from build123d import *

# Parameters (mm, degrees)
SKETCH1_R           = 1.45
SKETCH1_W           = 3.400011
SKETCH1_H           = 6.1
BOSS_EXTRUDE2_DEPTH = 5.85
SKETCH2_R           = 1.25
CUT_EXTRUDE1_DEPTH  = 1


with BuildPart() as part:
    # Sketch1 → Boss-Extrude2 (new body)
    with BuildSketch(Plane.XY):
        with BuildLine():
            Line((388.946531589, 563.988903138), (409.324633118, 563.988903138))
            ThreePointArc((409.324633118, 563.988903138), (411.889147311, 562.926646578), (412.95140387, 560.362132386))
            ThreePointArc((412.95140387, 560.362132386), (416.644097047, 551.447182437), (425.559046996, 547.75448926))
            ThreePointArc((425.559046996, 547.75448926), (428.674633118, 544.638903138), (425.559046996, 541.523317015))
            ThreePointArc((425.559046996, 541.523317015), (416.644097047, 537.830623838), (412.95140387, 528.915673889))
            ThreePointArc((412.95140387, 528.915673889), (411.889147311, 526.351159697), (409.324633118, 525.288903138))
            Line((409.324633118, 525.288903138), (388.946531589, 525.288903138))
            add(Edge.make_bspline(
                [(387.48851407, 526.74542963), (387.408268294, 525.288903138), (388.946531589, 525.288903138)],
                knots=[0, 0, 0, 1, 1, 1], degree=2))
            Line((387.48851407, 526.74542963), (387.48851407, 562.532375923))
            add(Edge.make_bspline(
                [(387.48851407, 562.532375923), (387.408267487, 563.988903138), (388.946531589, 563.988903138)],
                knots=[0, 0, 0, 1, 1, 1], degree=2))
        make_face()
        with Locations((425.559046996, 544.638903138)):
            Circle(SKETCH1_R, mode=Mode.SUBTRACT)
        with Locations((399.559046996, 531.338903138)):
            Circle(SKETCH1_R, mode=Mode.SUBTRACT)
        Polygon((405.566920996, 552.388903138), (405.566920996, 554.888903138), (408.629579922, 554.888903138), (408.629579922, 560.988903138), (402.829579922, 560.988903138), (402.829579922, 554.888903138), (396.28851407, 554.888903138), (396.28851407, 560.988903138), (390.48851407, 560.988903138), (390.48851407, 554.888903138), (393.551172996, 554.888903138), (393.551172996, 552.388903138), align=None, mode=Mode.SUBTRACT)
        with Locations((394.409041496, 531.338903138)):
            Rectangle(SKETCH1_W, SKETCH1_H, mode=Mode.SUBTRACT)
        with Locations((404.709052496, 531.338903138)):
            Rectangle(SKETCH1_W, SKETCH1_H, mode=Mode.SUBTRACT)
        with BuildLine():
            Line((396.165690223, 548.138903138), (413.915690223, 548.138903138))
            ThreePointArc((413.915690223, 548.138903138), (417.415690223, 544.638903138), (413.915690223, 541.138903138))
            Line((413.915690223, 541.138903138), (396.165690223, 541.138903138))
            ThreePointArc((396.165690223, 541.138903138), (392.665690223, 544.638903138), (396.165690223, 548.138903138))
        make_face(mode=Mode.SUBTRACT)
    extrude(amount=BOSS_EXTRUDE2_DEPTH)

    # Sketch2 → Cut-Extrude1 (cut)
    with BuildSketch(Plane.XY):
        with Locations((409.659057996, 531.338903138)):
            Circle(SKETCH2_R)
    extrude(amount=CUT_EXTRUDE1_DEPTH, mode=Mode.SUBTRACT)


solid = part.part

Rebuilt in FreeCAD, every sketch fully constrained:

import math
import FreeCAD as App
import Part
import Sketcher

V = App.Vector

doc = App.newDocument("Part")
params = doc.addObject("Spreadsheet::Sheet", "Params")
for row, (alias, value) in enumerate([
    ("sketch1_diameter", "2.9 mm"),
    ("sketch1_radius", "3.5 mm"),
    ("sketch1_width", "5.8 mm"),
    ("sketch1_height", "6.1 mm"),
    ("sketch1_height2", "2.5 mm"),
    ("pad1_length", "5.85 mm"),
    ("sketch2_diameter", "2.5 mm"),
    ("pocket1_length", "1 mm"),
], start=1):
    params.set(f"A{row}", alias)
    params.set(f"B{row}", "=" + value)
    params.setAlias(f"B{row}", alias)

body = doc.addObject("PartDesign::Body", "Body")

# Sketch on XY plane
sketch1 = doc.addObject("Sketcher::SketchObject", "Sketch")
body.addObject(sketch1)
sketch1.AttachmentSupport = (doc.XY_Plane, [""])
sketch1.MapMode = "FlatFace"
sketch1.addGeometry(Part.LineSegment(V(409.324633, 563.988903, 0), V(388.946532, 563.988903, 0)), False)
sketch1.addGeometry(Part.BSplineCurve([V(387.488514, 562.532376, 0), V(387.408267, 563.988903, 0), V(388.946532, 563.988903, 0)], [3, 3], [0, 1], False, 2, [1, 1, 1], False), False)
sketch1.addGeometry(Part.LineSegment(V(387.488514, 562.532376, 0), V(387.488514, 526.74543, 0)), False)
sketch1.addGeometry(Part.BSplineCurve([V(387.488514, 526.74543, 0), V(387.408268, 525.288903, 0), V(388.946532, 525.288903, 0)], [3, 3], [0, 1], False, 2, [1, 1, 1], False), False)
sketch1.addGeometry(Part.LineSegment(V(388.946532, 525.288903, 0), V(409.324633, 525.288903, 0)), False)
sketch1.addGeometry(Part.ArcOfCircle(Part.Circle(V(409.324633, 528.915674, 0), V(0, 0, 1), 3.626771), math.radians(-90), math.radians(0)), False)
sketch1.addGeometry(Part.ArcOfCircle(Part.Circle(V(425.559047, 528.915674, 0), V(0, 0, 1), 12.607643), math.radians(90), math.radians(180)), False)
sketch1.addGeometry(Part.ArcOfCircle(Part.Circle(V(425.559047, 544.638903, 0), V(0, 0, 1), 3.115586), math.radians(-90), math.radians(90)), False)
sketch1.addGeometry(Part.ArcOfCircle(Part.Circle(V(425.559047, 560.362132, 0), V(0, 0, 1), 12.607643), math.radians(-180), math.radians(-90)), False)
sketch1.addGeometry(Part.ArcOfCircle(Part.Circle(V(409.324633, 560.362132, 0), V(0, 0, 1), 3.626771), math.radians(0), math.radians(90)), False)
sketch1.addGeometry(Part.LineSegment(V(403.009047, 528.288903, 0), V(403.009047, 534.388903, 0)), False)
sketch1.addGeometry(Part.LineSegment(V(403.009047, 534.388903, 0), V(406.409058, 534.388903, 0)), False)
sketch1.addGeometry(Part.LineSegment(V(406.409058, 534.388903, 0), V(406.409058, 528.288903, 0)), False)
sketch1.addGeometry(Part.LineSegment(V(406.409058, 528.288903, 0), V(403.009047, 528.288903, 0)), False)
sketch1.addGeometry(Part.Circle(V(399.559047, 531.338903, 0), V(0, 0, 1), 1.45), False)
sketch1.addGeometry(Part.LineSegment(V(392.709036, 528.288903, 0), V(392.709036, 534.388903, 0)), False)
sketch1.addGeometry(Part.LineSegment(V(392.709036, 534.388903, 0), V(396.109047, 534.388903, 0)), False)
sketch1.addGeometry(Part.LineSegment(V(396.109047, 534.388903, 0), V(396.109047, 528.288903, 0)), False)
sketch1.addGeometry(Part.LineSegment(V(396.109047, 528.288903, 0), V(392.709036, 528.288903, 0)), False)
sketch1.addGeometry(Part.Circle(V(425.559047, 544.638903, 0), V(0, 0, 1), 1.45), False)
sketch1.addGeometry(Part.LineSegment(V(396.16569, 548.138903, 0), V(413.91569, 548.138903, 0)), False)
sketch1.addGeometry(Part.ArcOfCircle(Part.Circle(V(413.91569, 544.638903, 0), V(0, 0, 1), 3.5), math.radians(-90), math.radians(90)), False)
sketch1.addGeometry(Part.LineSegment(V(413.91569, 541.138903, 0), V(396.16569, 541.138903, 0)), False)
sketch1.addGeometry(Part.ArcOfCircle(Part.Circle(V(396.16569, 544.638903, 0), V(0, 0, 1), 3.5), math.radians(90), math.radians(270)), False)
sketch1.addGeometry(Part.LineSegment(V(405.566921, 552.388903, 0), V(393.551173, 552.388903, 0)), False)
sketch1.addGeometry(Part.LineSegment(V(393.551173, 552.388903, 0), V(393.551173, 554.888903, 0)), False)
sketch1.addGeometry(Part.LineSegment(V(393.551173, 554.888903, 0), V(390.488514, 554.888903, 0)), False)
sketch1.addGeometry(Part.LineSegment(V(390.488514, 554.888903, 0), V(390.488514, 560.988903, 0)), False)
sketch1.addGeometry(Part.LineSegment(V(390.488514, 560.988903, 0), V(396.288514, 560.988903, 0)), False)
sketch1.addGeometry(Part.LineSegment(V(396.288514, 560.988903, 0), V(396.288514, 554.888903, 0)), False)
sketch1.addGeometry(Part.LineSegment(V(396.288514, 554.888903, 0), V(402.82958, 554.888903, 0)), False)
sketch1.addGeometry(Part.LineSegment(V(402.82958, 554.888903, 0), V(402.82958, 560.988903, 0)), False)
sketch1.addGeometry(Part.LineSegment(V(402.82958, 560.988903, 0), V(408.62958, 560.988903, 0)), False)
sketch1.addGeometry(Part.LineSegment(V(408.62958, 560.988903, 0), V(408.62958, 554.888903, 0)), False)
sketch1.addGeometry(Part.LineSegment(V(408.62958, 554.888903, 0), V(405.566921, 554.888903, 0)), False)
sketch1.addGeometry(Part.LineSegment(V(405.566921, 554.888903, 0), V(405.566921, 552.388903, 0)), False)
sketch1.addConstraint(Sketcher.Constraint("Block", 1))
sketch1.addConstraint(Sketcher.Constraint("Block", 3))
sketch1.addConstraint(Sketcher.Constraint("Coincident", 0, 2, 1, 2))
sketch1.addConstraint(Sketcher.Constraint("Coincident", 1, 1, 2, 1))
sketch1.addConstraint(Sketcher.Constraint("Coincident", 2, 2, 3, 1))
sketch1.addConstraint(Sketcher.Constraint("Coincident", 3, 2, 4, 1))
sketch1.addConstraint(Sketcher.Constraint("Tangent", 4, 2, 5, 1))
sketch1.addConstraint(Sketcher.Constraint("Tangent", 5, 2, 6, 2))
sketch1.addConstraint(Sketcher.Constraint("Tangent", 6, 1, 7, 1))
sketch1.addConstraint(Sketcher.Constraint("Tangent", 7, 2, 8, 2))
sketch1.addConstraint(Sketcher.Constraint("Tangent", 8, 1, 9, 1))
sketch1.addConstraint(Sketcher.Constraint("Tangent", 9, 2, 0, 1))
sketch1.addConstraint(Sketcher.Constraint("Coincident", 10, 2, 11, 1))
sketch1.addConstraint(Sketcher.Constraint("Coincident", 11, 2, 12, 1))
sketch1.addConstraint(Sketcher.Constraint("Coincident", 12, 2, 13, 1))
sketch1.addConstraint(Sketcher.Constraint("Coincident", 13, 2, 10, 1))
sketch1.addConstraint(Sketcher.Constraint("Coincident", 15, 2, 16, 1))
sketch1.addConstraint(Sketcher.Constraint("Coincident", 16, 2, 17, 1))
sketch1.addConstraint(Sketcher.Constraint("Coincident", 17, 2, 18, 1))
sketch1.addConstraint(Sketcher.Constraint("Coincident", 18, 2, 15, 1))
sketch1.addConstraint(Sketcher.Constraint("Tangent", 20, 2, 21, 2))
sketch1.addConstraint(Sketcher.Constraint("Tangent", 21, 1, 22, 1))
sketch1.addConstraint(Sketcher.Constraint("Tangent", 22, 2, 23, 2))
sketch1.addConstraint(Sketcher.Constraint("Tangent", 23, 1, 20, 1))
sketch1.addConstraint(Sketcher.Constraint("Coincident", 24, 2, 25, 1))
sketch1.addConstraint(Sketcher.Constraint("Coincident", 25, 2, 26, 1))
sketch1.addConstraint(Sketcher.Constraint("Coincident", 26, 2, 27, 1))
sketch1.addConstraint(Sketcher.Constraint("Coincident", 27, 2, 28, 1))
sketch1.addConstraint(Sketcher.Constraint("Coincident", 28, 2, 29, 1))
sketch1.addConstraint(Sketcher.Constraint("Coincident", 29, 2, 30, 1))
sketch1.addConstraint(Sketcher.Constraint("Coincident", 30, 2, 31, 1))
sketch1.addConstraint(Sketcher.Constraint("Coincident", 31, 2, 32, 1))
sketch1.addConstraint(Sketcher.Constraint("Coincident", 32, 2, 33, 1))
sketch1.addConstraint(Sketcher.Constraint("Coincident", 33, 2, 34, 1))
sketch1.addConstraint(Sketcher.Constraint("Coincident", 34, 2, 35, 1))
sketch1.addConstraint(Sketcher.Constraint("Coincident", 35, 2, 24, 1))
sketch1.addConstraint(Sketcher.Constraint("Horizontal", 0))
sketch1.addConstraint(Sketcher.Constraint("Horizontal", 4))
sketch1.addConstraint(Sketcher.Constraint("Vertical", 10))
sketch1.addConstraint(Sketcher.Constraint("Horizontal", 11))
sketch1.addConstraint(Sketcher.Constraint("Vertical", 12))
sketch1.addConstraint(Sketcher.Constraint("Horizontal", 13))
sketch1.addConstraint(Sketcher.Constraint("Vertical", 15))
sketch1.addConstraint(Sketcher.Constraint("Horizontal", 16))
sketch1.addConstraint(Sketcher.Constraint("Vertical", 17))
sketch1.addConstraint(Sketcher.Constraint("Horizontal", 18))
sketch1.addConstraint(Sketcher.Constraint("Horizontal", 20))
sketch1.addConstraint(Sketcher.Constraint("Horizontal", 22))
sketch1.addConstraint(Sketcher.Constraint("Horizontal", 24))
sketch1.addConstraint(Sketcher.Constraint("Vertical", 25))
sketch1.addConstraint(Sketcher.Constraint("Horizontal", 26))
sketch1.addConstraint(Sketcher.Constraint("Vertical", 27))
sketch1.addConstraint(Sketcher.Constraint("Horizontal", 28))
sketch1.addConstraint(Sketcher.Constraint("Vertical", 29))
sketch1.addConstraint(Sketcher.Constraint("Horizontal", 30))
sketch1.addConstraint(Sketcher.Constraint("Vertical", 31))
sketch1.addConstraint(Sketcher.Constraint("Horizontal", 32))
sketch1.addConstraint(Sketcher.Constraint("Vertical", 33))
sketch1.addConstraint(Sketcher.Constraint("Horizontal", 34))
sketch1.addConstraint(Sketcher.Constraint("Vertical", 35))
sketch1.addConstraint(Sketcher.Constraint("Coincident", 19, 3, 7, 3))
sketch1.addConstraint(Sketcher.Constraint("Equal", 6, 8))
sketch1.addConstraint(Sketcher.Constraint("Equal", 5, 9))
sketch1.addConstraint(Sketcher.Constraint("Equal", 14, 19))
sketch1.addConstraint(Sketcher.Constraint("Horizontal", 5, 3, 6, 3))
sketch1.addConstraint(Sketcher.Constraint("Horizontal", 8, 3, 9, 3))
sketch1.addConstraint(Sketcher.Constraint("Horizontal", 19, 3, 21, 3))
sketch1.addConstraint(Sketcher.Constraint("Horizontal", 11, 2, 15, 2))
sketch1.addConstraint(Sketcher.Constraint("Horizontal", 13, 2, 17, 2))
sketch1.addConstraint(Sketcher.Constraint("Horizontal", 26, 2, 29, 2))
sketch1.addConstraint(Sketcher.Constraint("Horizontal", 28, 2, 31, 2))
sketch1.addConstraint(Sketcher.Constraint("Horizontal", 30, 2, 33, 2))
sketch1.addConstraint(Sketcher.Constraint("Vertical", 6, 3, 7, 3))
sketch1.addConstraint(Sketcher.Constraint("Vertical", 7, 3, 8, 3))
sketch1.addConstraint(Sketcher.Constraint("Equal", 13, 16))
sketch1.addConstraint(Sketcher.Constraint("Equal", 28, 32))
sketch1.addConstraint(Sketcher.Constraint("Equal", 26, 34))
sketch1.addConstraint(Sketcher.Constraint("Equal", 17, 27))
sketch1.addConstraint(Sketcher.Constraint("Diameter", 14, 2.9))
sketch1.addConstraint(Sketcher.Constraint("Radius", 21, 3.5))
sketch1.addConstraint(Sketcher.Constraint("DistanceX", 28, 1, 28, 2, 5.8))
sketch1.addConstraint(Sketcher.Constraint("DistanceY", 10, 1, 10, 2, 6.1))
sketch1.addConstraint(Sketcher.Constraint("DistanceY", 25, 1, 25, 2, 2.5))
sketch1.addConstraint(Sketcher.Constraint("DistanceX", 14, 3, 6, 3, 26.0))
sketch1.addConstraint(Sketcher.Constraint("DistanceY", 4, 2, 12, 2, 3.0))
sketch1.addConstraint(Sketcher.Constraint("DistanceY", 27, 2, 0, 2, 3.0))
sketch1.addConstraint(Sketcher.Constraint("DistanceX", 20, 1, 20, 2, 17.75))
sketch1.addConstraint(Sketcher.Constraint("DistanceY", 14, 3, 7, 3, 13.3))
sketch1.addConstraint(Sketcher.Constraint("DistanceX", 16, 2, 10, 2, 6.9))
sketch1.addConstraint(Sketcher.Constraint("Radius", 5, 3.626771))
sketch1.addConstraint(Sketcher.Constraint("DistanceX", 14, 3, 10, 2, 3.45))
sketch1.addConstraint(Sketcher.Constraint("DistanceX", 0, 2, 0, 1, 20.378102))
sketch1.addConstraint(Sketcher.Constraint("Radius", 6, 12.607643))
sketch1.addConstraint(Sketcher.Constraint("DistanceX", 11, 1, 11, 2, 3.400011))
sketch1.addConstraint(Sketcher.Constraint("DistanceX", 24, 2, 24, 1, 12.015748))
sketch1.addConstraint(Sketcher.Constraint("DistanceX", 26, 2, 26, 1, 3.062659))
sketch1.addConstraint(Sketcher.Constraint("DistanceX", -1, 1, 21, 3, 413.91569))
sketch1.addConstraint(Sketcher.Constraint("DistanceX", -1, 1, 30, 2, 402.82958))
sketch1.setExpression("Constraints[78]", "Params.sketch1_diameter")
sketch1.setExpression("Constraints[79]", "Params.sketch1_radius")
sketch1.setExpression("Constraints[80]", "Params.sketch1_width")
sketch1.setExpression("Constraints[81]", "Params.sketch1_height")
sketch1.setExpression("Constraints[82]", "Params.sketch1_height2")
pad1 = doc.addObject("PartDesign::Pad", "Pad")
body.addObject(pad1)
pad1.Profile = sketch1
pad1.setExpression("Length", "Params.pad1_length")

# Sketch on XY plane
sketch2 = doc.addObject("Sketcher::SketchObject", "Sketch001")
body.addObject(sketch2)
sketch2.AttachmentSupport = (doc.XY_Plane, [""])
sketch2.MapMode = "FlatFace"
sketch2.addGeometry(Part.Circle(V(409.659058, 531.338903, 0), V(0, 0, 1), 1.25), False)
sketch2.addConstraint(Sketcher.Constraint("Diameter", 0, 2.5))
sketch2.addConstraint(Sketcher.Constraint("DistanceX", -1, 1, 0, 3, 409.659058))
sketch2.addConstraint(Sketcher.Constraint("DistanceY", -1, 1, 0, 3, 531.338903))
sketch2.setExpression("Constraints[0]", "Params.sketch2_diameter")
pocket1 = doc.addObject("PartDesign::Pocket", "Pocket")
body.addObject(pocket1)
pocket1.Profile = sketch2
pocket1.setExpression("Length", "Params.pocket1_length")
pocket1.Reversed = True

doc.recompute()
